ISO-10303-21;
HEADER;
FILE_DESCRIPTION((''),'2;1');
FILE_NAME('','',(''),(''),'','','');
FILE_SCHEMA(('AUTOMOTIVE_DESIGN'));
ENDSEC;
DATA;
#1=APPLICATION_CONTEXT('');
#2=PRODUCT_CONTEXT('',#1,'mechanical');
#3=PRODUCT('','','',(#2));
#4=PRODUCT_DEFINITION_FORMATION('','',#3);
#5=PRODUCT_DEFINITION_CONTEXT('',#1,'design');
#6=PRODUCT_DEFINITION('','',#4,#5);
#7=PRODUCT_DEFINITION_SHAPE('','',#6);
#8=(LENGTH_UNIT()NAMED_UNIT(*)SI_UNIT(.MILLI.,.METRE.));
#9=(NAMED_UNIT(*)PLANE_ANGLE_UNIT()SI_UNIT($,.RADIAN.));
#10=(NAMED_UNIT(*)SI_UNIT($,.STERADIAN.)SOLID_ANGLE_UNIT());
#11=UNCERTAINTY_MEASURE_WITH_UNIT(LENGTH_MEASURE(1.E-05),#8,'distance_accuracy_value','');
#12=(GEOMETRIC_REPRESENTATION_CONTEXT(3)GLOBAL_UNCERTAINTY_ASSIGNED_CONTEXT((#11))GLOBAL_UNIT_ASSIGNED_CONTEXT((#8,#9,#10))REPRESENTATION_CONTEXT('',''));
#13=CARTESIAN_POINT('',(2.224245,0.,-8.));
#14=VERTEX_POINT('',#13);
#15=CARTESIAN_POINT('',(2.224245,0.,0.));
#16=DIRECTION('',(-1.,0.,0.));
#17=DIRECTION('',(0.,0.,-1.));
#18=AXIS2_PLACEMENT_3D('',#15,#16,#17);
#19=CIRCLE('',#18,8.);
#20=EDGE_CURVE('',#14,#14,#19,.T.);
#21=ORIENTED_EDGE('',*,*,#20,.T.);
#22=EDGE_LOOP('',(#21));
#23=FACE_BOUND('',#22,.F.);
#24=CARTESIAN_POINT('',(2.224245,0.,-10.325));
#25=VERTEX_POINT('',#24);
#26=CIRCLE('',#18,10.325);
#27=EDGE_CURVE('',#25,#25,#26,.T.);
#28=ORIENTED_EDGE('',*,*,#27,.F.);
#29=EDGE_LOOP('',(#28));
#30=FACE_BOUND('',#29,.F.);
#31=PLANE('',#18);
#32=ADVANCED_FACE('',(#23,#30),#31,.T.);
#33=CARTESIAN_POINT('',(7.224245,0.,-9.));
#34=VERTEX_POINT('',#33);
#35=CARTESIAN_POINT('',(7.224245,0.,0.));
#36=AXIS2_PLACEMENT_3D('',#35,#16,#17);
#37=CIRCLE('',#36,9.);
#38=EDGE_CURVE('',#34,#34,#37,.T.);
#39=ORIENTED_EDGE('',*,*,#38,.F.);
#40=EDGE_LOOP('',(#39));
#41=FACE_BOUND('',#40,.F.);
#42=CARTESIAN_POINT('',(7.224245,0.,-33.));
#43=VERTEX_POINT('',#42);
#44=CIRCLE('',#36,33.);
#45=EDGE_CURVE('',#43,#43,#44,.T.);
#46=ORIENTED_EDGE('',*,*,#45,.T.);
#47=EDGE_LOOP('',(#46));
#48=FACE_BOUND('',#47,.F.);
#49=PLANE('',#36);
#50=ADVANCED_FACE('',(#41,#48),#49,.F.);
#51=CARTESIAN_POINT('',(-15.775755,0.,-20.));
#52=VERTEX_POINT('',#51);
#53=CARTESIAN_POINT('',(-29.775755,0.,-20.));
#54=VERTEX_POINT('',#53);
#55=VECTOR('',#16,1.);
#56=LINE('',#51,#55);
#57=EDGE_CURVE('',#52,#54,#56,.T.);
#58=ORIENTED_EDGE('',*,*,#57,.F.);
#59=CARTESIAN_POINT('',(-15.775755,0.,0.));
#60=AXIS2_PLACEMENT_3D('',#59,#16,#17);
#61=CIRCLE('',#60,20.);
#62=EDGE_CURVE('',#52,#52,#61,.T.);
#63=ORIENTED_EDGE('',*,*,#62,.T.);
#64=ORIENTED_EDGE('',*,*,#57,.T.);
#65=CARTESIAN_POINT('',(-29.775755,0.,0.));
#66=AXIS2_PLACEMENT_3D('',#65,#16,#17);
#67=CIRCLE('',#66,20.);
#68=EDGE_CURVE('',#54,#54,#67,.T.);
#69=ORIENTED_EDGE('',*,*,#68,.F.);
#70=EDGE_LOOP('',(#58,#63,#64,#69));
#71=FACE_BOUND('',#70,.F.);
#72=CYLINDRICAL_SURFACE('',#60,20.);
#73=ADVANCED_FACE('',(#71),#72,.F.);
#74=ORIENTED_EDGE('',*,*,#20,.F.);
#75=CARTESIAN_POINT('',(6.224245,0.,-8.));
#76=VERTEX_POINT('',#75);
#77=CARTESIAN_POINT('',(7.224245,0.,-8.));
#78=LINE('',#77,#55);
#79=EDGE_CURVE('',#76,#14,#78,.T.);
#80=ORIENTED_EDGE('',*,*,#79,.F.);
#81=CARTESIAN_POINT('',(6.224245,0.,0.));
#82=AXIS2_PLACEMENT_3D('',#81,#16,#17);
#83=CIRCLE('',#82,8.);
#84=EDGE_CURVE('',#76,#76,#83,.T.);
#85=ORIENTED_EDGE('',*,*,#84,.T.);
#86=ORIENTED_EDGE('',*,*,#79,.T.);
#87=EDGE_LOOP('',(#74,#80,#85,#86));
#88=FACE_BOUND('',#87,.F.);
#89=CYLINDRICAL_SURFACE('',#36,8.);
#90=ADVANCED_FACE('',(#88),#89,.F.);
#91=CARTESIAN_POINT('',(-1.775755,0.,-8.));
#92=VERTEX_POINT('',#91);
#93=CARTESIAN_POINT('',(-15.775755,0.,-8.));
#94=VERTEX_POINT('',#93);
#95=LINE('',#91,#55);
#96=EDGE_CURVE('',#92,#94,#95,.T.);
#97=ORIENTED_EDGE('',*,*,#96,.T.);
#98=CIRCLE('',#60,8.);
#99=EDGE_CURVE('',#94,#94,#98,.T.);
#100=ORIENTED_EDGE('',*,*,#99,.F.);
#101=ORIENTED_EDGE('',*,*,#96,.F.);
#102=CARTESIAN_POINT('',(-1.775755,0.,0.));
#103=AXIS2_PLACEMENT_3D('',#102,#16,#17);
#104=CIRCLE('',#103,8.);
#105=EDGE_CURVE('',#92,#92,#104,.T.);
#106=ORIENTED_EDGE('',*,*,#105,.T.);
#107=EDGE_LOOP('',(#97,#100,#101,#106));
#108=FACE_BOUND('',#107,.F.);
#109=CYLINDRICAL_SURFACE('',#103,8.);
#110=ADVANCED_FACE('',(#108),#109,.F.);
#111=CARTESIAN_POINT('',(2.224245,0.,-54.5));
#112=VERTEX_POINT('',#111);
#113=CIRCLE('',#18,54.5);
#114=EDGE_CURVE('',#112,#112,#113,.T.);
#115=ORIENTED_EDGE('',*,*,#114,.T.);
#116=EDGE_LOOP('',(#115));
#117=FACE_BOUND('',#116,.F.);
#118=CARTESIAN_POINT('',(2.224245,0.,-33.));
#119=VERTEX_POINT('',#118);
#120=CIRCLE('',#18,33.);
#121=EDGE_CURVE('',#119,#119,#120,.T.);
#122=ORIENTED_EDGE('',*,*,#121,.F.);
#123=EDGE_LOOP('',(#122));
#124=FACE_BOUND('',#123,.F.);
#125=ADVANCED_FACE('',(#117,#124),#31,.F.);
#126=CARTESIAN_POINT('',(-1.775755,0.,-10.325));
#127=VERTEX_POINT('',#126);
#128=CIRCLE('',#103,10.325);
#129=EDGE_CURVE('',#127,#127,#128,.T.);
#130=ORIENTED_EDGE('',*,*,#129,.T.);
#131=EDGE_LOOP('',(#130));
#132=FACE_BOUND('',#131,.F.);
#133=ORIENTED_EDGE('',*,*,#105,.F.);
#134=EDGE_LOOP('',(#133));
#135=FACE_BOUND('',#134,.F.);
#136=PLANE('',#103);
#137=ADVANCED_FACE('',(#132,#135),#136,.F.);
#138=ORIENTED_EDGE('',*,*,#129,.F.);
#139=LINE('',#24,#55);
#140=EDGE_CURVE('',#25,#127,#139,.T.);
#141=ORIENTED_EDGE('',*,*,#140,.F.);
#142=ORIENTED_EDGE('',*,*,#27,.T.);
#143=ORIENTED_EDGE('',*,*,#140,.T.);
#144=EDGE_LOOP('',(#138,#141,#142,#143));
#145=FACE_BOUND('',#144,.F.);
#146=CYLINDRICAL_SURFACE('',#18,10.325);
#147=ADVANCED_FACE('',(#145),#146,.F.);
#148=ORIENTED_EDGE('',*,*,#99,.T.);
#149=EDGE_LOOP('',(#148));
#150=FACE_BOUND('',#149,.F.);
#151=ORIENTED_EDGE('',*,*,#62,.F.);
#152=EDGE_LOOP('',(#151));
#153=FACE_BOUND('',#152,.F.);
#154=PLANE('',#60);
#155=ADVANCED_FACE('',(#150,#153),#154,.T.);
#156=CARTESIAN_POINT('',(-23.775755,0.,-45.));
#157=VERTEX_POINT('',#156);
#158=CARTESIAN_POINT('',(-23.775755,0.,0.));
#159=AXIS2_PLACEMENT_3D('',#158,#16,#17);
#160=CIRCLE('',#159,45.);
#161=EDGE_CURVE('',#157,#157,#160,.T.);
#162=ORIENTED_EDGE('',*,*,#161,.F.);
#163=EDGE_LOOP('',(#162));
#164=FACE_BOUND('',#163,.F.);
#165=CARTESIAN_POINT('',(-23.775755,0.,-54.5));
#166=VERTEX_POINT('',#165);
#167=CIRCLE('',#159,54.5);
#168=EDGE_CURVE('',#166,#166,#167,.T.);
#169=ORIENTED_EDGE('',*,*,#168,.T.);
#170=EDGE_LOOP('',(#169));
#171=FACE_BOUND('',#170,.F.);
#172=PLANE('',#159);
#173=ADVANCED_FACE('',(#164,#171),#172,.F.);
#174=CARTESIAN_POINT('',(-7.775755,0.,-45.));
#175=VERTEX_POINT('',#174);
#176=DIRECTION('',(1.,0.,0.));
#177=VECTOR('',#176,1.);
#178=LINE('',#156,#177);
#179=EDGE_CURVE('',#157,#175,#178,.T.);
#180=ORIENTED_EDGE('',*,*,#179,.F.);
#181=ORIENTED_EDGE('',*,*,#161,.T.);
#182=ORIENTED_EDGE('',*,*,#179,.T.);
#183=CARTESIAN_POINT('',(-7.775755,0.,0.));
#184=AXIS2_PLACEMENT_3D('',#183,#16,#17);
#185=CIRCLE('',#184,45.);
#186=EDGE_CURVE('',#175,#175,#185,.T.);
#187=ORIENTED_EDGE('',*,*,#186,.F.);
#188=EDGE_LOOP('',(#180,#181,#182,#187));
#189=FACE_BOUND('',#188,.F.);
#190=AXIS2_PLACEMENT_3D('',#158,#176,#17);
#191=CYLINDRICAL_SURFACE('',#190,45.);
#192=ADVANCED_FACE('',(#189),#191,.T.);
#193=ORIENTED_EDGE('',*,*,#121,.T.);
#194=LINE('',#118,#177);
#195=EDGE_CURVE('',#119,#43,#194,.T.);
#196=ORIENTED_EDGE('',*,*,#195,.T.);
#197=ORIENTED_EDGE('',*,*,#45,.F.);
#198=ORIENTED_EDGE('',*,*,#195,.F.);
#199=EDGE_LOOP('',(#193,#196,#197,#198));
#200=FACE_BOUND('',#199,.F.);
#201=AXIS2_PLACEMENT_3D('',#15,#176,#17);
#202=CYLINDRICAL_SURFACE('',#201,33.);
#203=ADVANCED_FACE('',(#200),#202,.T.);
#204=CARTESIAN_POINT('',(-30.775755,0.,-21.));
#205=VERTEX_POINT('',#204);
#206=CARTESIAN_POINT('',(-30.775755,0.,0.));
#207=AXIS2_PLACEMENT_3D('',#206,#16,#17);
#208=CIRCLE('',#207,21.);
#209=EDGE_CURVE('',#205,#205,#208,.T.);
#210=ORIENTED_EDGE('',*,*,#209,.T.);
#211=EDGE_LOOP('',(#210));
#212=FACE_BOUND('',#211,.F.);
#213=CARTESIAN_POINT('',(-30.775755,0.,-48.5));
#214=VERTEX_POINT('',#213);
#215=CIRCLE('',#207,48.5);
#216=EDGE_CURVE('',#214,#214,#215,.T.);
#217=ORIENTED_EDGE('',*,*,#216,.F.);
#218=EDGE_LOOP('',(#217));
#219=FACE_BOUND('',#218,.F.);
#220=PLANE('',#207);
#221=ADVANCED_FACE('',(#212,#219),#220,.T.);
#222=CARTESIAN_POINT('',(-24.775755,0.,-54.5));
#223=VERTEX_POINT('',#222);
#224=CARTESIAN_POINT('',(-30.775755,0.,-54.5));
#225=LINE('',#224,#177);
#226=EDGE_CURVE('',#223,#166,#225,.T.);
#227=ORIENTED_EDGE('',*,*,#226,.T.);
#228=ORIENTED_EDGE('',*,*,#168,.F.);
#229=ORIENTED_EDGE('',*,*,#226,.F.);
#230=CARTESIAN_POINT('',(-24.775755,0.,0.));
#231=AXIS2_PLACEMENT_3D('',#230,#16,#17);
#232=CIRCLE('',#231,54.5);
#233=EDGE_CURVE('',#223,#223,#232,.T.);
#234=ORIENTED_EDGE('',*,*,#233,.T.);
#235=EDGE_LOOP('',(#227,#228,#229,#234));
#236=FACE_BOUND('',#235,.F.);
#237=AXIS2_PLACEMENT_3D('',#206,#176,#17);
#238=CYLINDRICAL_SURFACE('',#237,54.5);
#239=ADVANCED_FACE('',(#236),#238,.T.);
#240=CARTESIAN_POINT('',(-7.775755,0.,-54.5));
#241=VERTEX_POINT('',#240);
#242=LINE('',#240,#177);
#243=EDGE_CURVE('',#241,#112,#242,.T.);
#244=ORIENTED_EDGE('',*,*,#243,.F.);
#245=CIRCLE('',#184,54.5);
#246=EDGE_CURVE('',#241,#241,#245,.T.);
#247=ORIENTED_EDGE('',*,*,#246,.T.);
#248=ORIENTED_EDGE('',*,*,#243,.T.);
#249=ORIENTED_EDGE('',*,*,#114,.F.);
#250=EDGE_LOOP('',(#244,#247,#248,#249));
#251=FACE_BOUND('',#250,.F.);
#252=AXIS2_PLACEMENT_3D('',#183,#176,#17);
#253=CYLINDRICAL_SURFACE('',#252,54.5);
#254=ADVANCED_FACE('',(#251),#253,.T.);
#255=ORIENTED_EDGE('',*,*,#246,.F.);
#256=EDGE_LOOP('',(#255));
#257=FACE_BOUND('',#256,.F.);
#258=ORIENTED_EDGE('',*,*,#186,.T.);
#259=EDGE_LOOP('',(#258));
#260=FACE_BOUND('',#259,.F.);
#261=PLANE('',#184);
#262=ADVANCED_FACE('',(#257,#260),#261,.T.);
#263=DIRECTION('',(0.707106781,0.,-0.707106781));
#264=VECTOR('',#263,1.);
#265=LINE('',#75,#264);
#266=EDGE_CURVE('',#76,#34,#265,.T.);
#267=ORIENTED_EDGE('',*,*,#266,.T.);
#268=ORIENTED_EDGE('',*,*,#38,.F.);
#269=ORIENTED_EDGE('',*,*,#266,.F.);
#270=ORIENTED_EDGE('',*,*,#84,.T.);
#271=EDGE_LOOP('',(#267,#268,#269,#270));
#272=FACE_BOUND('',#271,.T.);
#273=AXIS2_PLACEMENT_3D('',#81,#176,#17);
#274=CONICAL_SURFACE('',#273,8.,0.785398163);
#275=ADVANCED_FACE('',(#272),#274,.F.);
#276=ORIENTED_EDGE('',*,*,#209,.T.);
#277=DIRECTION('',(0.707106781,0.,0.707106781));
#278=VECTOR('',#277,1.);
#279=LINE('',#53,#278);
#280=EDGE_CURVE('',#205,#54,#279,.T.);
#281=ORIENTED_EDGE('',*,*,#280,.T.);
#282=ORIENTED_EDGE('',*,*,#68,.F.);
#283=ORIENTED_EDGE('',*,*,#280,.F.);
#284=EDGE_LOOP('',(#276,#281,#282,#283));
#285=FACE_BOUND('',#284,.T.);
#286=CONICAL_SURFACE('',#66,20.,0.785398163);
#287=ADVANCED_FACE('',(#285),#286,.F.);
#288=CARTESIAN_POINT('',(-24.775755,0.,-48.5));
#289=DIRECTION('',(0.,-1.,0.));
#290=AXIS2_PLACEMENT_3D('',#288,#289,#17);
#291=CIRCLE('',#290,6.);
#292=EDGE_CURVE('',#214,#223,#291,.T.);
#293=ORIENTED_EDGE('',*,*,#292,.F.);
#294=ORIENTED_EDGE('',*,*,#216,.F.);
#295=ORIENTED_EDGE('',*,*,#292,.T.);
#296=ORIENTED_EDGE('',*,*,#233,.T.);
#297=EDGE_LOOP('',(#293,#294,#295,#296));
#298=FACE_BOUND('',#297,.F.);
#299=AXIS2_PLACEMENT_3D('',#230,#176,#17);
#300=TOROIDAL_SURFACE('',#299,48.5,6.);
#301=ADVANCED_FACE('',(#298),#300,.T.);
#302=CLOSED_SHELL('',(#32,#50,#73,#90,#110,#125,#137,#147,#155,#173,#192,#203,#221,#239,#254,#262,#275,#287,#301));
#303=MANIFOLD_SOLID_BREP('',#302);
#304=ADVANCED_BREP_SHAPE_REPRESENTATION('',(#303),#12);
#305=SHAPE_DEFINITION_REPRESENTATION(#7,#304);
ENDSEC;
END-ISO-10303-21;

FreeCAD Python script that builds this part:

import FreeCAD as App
import Part
import Sketcher
Q = App.Units.Quantity


def edges_at(feature, points):
    """Names of the edges that pass closest to the given points."""
    edges = feature.Shape.Edges
    near = lambda p: min(range(len(edges)), key=lambda i: edges[i].distToShape(Part.Vertex(*p))[0])
    return sorted({f"Edge{near(p) + 1}" for p in points})

doc = App.newDocument("Part")
body = doc.addObject("PartDesign::Body", "Body")

# Sketch on XZ plane
sketch1 = body.newObject("Sketcher::SketchObject", "Sketch")
sketch1.AttachmentSupport = (doc.getObject("XZ_Plane"), [""])
sketch1.MapMode = "FlatFace"
sketch1.addGeometry([
    Part.LineSegment(App.Vector(-15.8, -20, 0), App.Vector(-30.8, -20, 0)),  # 0
    Part.LineSegment(App.Vector(-30.8, -20, 0), App.Vector(-30.8, -54.5, 0)),  # 1
    Part.LineSegment(App.Vector(-30.8, -54.5, 0), App.Vector(-23.8, -54.5, 0)),  # 2
    Part.LineSegment(App.Vector(-23.8, -54.5, 0), App.Vector(-23.8, -45, 0)),  # 3
    Part.LineSegment(App.Vector(-23.8, -45, 0), App.Vector(-7.8, -45, 0)),  # 4
    Part.LineSegment(App.Vector(-7.8, -45, 0), App.Vector(-7.8, -54.5, 0)),  # 5
    Part.LineSegment(App.Vector(-7.8, -54.5, 0), App.Vector(2.2, -54.5, 0)),  # 6
    Part.LineSegment(App.Vector(2.2, -54.5, 0), App.Vector(2.2, -33, 0)),  # 7
    Part.LineSegment(App.Vector(2.2, -33, 0), App.Vector(7.2, -33, 0)),  # 8
    Part.LineSegment(App.Vector(7.2, -33, 0), App.Vector(7.2, -8, 0)),  # 9
    Part.LineSegment(App.Vector(7.2, -8, 0), App.Vector(2.2, -8, 0)),  # 10
    Part.LineSegment(App.Vector(2.2, -8, 0), App.Vector(2.2, -10.3, 0)),  # 11
    Part.LineSegment(App.Vector(2.2, -10.3, 0), App.Vector(-1.8, -10.3, 0)),  # 12
    Part.LineSegment(App.Vector(-1.8, -10.3, 0), App.Vector(-1.8, -8, 0)),  # 13
    Part.LineSegment(App.Vector(-1.8, -8, 0), App.Vector(-15.8, -8, 0)),  # 14
    Part.LineSegment(App.Vector(-15.8, -8, 0), App.Vector(-15.8, -20, 0)),  # 15
], False)
sketch1.addConstraint([
    Sketcher.Constraint("Coincident", 0, 2, 1, 1),
    Sketcher.Constraint("Coincident", 1, 2, 2, 1),
    Sketcher.Constraint("Coincident", 2, 2, 3, 1),
    Sketcher.Constraint("Coincident", 3, 2, 4, 1),
    Sketcher.Constraint("Coincident", 4, 2, 5, 1),
    Sketcher.Constraint("Coincident", 5, 2, 6, 1),
    Sketcher.Constraint("Coincident", 6, 2, 7, 1),
    Sketcher.Constraint("Coincident", 7, 2, 8, 1),
    Sketcher.Constraint("Coincident", 8, 2, 9, 1),
    Sketcher.Constraint("Coincident", 9, 2, 10, 1),
    Sketcher.Constraint("Coincident", 10, 2, 11, 1),
    Sketcher.Constraint("Coincident", 11, 2, 12, 1),
    Sketcher.Constraint("Coincident", 12, 2, 13, 1),
    Sketcher.Constraint("Coincident", 13, 2, 14, 1),
    Sketcher.Constraint("Coincident", 14, 2, 15, 1),
    Sketcher.Constraint("Coincident", 15, 2, 0, 1),
    Sketcher.Constraint("Horizontal", 0),
    Sketcher.Constraint("Vertical", 1),
    Sketcher.Constraint("Horizontal", 2),
    Sketcher.Constraint("Vertical", 3),
    Sketcher.Constraint("Horizontal", 4),
    Sketcher.Constraint("Vertical", 5),
    Sketcher.Constraint("Horizontal", 6),
    Sketcher.Constraint("Vertical", 7),
    Sketcher.Constraint("Horizontal", 8),
    Sketcher.Constraint("Vertical", 9),
    Sketcher.Constraint("Horizontal", 10),
    Sketcher.Constraint("Vertical", 11),
    Sketcher.Constraint("Horizontal", 12),
    Sketcher.Constraint("Vertical", 13),
    Sketcher.Constraint("Horizontal", 14),
    Sketcher.Constraint("Vertical", 15),
    Sketcher.Constraint("Horizontal", 2, 2, 5, 2),
    Sketcher.Constraint("Horizontal", 10, 2, 13, 2),
    Sketcher.Constraint("Vertical", 7, 2, 10, 2),
    Sketcher.Constraint("DistanceX", 0, 2, 0, 1, Q("15 mm")),
    Sketcher.Constraint("DistanceX", 2, 1, 2, 2, Q("7 mm")),
    Sketcher.Constraint("DistanceX", 4, 1, 4, 2, Q("16 mm")),
    Sketcher.Constraint("DistanceX", 6, 1, 6, 2, Q("10 mm")),
    Sketcher.Constraint("DistanceX", 8, 1, 8, 2, Q("5 mm")),
    Sketcher.Constraint("DistanceX", 12, 2, 12, 1, Q("4 mm")),
    Sketcher.Constraint("DistanceY", 9, 1, 9, 2, Q("25 mm")),
    Sketcher.Constraint("DistanceY", 15, 2, 15, 1, Q("12 mm")),
    Sketcher.Constraint("DistanceY", 1, 2, 1, 1, Q("34.5 mm")),
    Sketcher.Constraint("DistanceY", 3, 1, 3, 2, Q("9.5 mm")),
    Sketcher.Constraint("DistanceY", 0, 2, -1, 1, Q("20 mm")),
    Sketcher.Constraint("DistanceY", 11, 2, 11, 1, Q("2.325 mm")),
    Sketcher.Constraint("DistanceX", 0, 2, -1, 1, Q("30.775755 mm")),
])
revolution = body.newObject("PartDesign::Revolution", "Revolution")
revolution.Profile = sketch1
revolution.ReferenceAxis = (sketch1, ["H_Axis"])
revolution.Angle = 360
doc.recompute()

fillet = body.newObject("PartDesign::Fillet", "Fillet")
fillet.Base = (revolution, edges_at(revolution, [(-30.776, 0, 54.5)]))
fillet.Radius = 6
doc.recompute()

chamfer = body.newObject("PartDesign::Chamfer", "Chamfer")
chamfer.Base = (fillet, edges_at(fillet, [(-30.776, 0, 20), (7.224, 0, 8)]))
chamfer.Size = 1

doc.recompute()
